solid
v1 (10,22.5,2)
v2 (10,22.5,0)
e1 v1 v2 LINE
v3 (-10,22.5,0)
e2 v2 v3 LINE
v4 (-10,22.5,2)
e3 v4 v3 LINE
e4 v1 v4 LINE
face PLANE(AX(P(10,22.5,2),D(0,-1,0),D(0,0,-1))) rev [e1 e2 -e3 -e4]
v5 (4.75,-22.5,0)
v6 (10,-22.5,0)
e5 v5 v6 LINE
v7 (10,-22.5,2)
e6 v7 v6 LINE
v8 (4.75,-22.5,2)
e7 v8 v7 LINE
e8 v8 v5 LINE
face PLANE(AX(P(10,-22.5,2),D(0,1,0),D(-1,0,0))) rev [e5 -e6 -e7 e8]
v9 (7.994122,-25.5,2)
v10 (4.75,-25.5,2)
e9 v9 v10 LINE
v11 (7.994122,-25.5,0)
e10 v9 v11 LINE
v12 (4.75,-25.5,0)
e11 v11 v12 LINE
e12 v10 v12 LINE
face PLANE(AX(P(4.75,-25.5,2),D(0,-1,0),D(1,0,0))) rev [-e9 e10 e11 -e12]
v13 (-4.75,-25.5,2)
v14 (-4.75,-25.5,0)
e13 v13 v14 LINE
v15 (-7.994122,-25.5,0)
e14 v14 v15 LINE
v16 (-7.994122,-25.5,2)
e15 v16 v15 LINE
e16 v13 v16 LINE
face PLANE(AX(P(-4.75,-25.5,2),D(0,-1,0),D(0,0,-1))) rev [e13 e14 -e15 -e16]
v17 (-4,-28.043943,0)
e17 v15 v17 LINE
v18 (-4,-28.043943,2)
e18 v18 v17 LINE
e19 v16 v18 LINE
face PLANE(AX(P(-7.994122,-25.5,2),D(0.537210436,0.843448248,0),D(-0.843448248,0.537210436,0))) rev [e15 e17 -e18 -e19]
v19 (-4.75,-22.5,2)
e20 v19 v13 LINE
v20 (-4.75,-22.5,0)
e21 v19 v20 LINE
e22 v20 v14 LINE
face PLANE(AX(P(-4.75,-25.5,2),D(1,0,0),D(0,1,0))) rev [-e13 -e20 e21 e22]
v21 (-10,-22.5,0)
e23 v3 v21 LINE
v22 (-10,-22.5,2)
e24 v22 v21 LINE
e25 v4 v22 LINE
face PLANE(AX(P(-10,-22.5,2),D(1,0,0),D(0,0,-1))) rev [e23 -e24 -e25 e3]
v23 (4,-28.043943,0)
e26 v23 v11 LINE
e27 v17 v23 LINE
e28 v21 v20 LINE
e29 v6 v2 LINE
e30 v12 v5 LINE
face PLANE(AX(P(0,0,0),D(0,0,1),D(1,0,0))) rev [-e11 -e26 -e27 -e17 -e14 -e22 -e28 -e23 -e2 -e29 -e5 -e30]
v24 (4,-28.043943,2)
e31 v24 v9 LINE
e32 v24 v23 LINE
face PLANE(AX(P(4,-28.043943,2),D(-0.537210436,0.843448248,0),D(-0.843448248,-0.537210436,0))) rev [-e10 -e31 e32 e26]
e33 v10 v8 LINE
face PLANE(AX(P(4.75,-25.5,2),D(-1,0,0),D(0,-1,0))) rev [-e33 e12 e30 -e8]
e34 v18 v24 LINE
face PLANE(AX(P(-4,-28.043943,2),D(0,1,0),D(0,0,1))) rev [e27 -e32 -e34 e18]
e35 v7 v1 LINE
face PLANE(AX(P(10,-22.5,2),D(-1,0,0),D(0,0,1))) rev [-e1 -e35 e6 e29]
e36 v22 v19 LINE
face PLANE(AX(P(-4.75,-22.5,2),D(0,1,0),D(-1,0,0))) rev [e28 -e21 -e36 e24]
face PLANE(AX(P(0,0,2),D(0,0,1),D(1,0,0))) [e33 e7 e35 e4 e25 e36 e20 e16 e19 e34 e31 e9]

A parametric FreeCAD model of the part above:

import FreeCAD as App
import Part
import Sketcher
Q = App.Units.Quantity

doc = App.newDocument("Part")
body = doc.addObject("PartDesign::Body", "Body")

# Sketch on XY plane
sketch1 = body.newObject("Sketcher::SketchObject", "Sketch")
sketch1.AttachmentSupport = (doc.getObject("XY_Plane"), [""])
sketch1.MapMode = "FlatFace"
sketch1.addGeometry(Part.LineSegment(App.Vector(-4.8, -25.5, 0), App.Vector(-8, -25.5, 0)), False)
sketch1.addGeometry(Part.LineSegment(App.Vector(-8, -25.5, 0), App.Vector(-4, -28, 0)), False)
sketch1.addGeometry(Part.LineSegment(App.Vector(-4, -28, 0), App.Vector(4, -28, 0)), False)
sketch1.addGeometry(Part.LineSegment(App.Vector(4, -28, 0), App.Vector(8, -25.5, 0)), False)
sketch1.addGeometry(Part.LineSegment(App.Vector(8, -25.5, 0), App.Vector(4.8, -25.5, 0)), False)
sketch1.addGeometry(Part.LineSegment(App.Vector(4.8, -25.5, 0), App.Vector(4.8, -22.5, 0)), False)
sketch1.addGeometry(Part.LineSegment(App.Vector(4.8, -22.5, 0), App.Vector(10, -22.5, 0)), False)
sketch1.addGeometry(Part.LineSegment(App.Vector(10, -22.5, 0), App.Vector(10, 22.5, 0)), False)
sketch1.addGeometry(Part.LineSegment(App.Vector(10, 22.5, 0), App.Vector(-10, 22.5, 0)), False)
sketch1.addGeometry(Part.LineSegment(App.Vector(-10, 22.5, 0), App.Vector(-10, -22.5, 0)), False)
sketch1.addGeometry(Part.LineSegment(App.Vector(-10, -22.5, 0), App.Vector(-4.8, -22.5, 0)), False)
sketch1.addGeometry(Part.LineSegment(App.Vector(-4.8, -22.5, 0), App.Vector(-4.8, -25.5, 0)), False)
sketch1.addConstraint(Sketcher.Constraint("Coincident", 0, 2, 1, 1))
sketch1.addConstraint(Sketcher.Constraint("Coincident", 1, 2, 2, 1))
sketch1.addConstraint(Sketcher.Constraint("Coincident", 2, 2, 3, 1))
sketch1.addConstraint(Sketcher.Constraint("Coincident", 3, 2, 4, 1))
sketch1.addConstraint(Sketcher.Constraint("Coincident", 4, 2, 5, 1))
sketch1.addConstraint(Sketcher.Constraint("Coincident", 5, 2, 6, 1))
sketch1.addConstraint(Sketcher.Constraint("Coincident", 6, 2, 7, 1))
sketch1.addConstraint(Sketcher.Constraint("Coincident", 7, 2, 8, 1))
sketch1.addConstraint(Sketcher.Constraint("Coincident", 8, 2, 9, 1))
sketch1.addConstraint(Sketcher.Constraint("Coincident", 9, 2, 10, 1))
sketch1.addConstraint(Sketcher.Constraint("Coincident", 10, 2, 11, 1))
sketch1.addConstraint(Sketcher.Constraint("Coincident", 11, 2, 0, 1))
sketch1.addConstraint(Sketcher.Constraint("Horizontal", 0))
sketch1.addConstraint(Sketcher.Constraint("Horizontal", 2))
sketch1.addConstraint(Sketcher.Constraint("Horizontal", 4))
sketch1.addConstraint(Sketcher.Constraint("Vertical", 5))
sketch1.addConstraint(Sketcher.Constraint("Horizontal", 6))
sketch1.addConstraint(Sketcher.Constraint("Vertical", 7))
sketch1.addConstraint(Sketcher.Constraint("Horizontal", 8))
sketch1.addConstraint(Sketcher.Constraint("Vertical", 9))
sketch1.addConstraint(Sketcher.Constraint("Horizontal", 10))
sketch1.addConstraint(Sketcher.Constraint("Vertical", 11))
sketch1.addConstraint(Sketcher.Constraint("Symmetric", 6, 2, 8, 2, -1, 1))
sketch1.addConstraint(Sketcher.Constraint("Symmetric", 0, 2, 3, 2, -2))
sketch1.addConstraint(Sketcher.Constraint("Symmetric", 5, 2, 10, 2, -2))
sketch1.addConstraint(Sketcher.Constraint("Equal", 1, 3))
sketch1.addConstraint(Sketcher.Constraint("DistanceX", 2, 1, 2, 2, Q("8 mm")))
sketch1.addConstraint(Sketcher.Constraint("DistanceX", 8, 2, 8, 1, Q("20 mm")))
sketch1.addConstraint(Sketcher.Constraint("DistanceY", 5, 1, 5, 2, Q("3 mm")))
sketch1.addConstraint(Sketcher.Constraint("DistanceY", 7, 1, 7, 2, Q("45 mm")))
sketch1.addConstraint(Sketcher.Constraint("DistanceX", 6, 1, 6, 2, Q("5.25 mm")))
sketch1.addConstraint(Sketcher.Constraint("DistanceX", 0, 2, 0, 1, Q("3.244122 mm")))
sketch1.addConstraint(Sketcher.Constraint("Distance", 1, Q("4.735468 mm")))
pad1 = body.newObject("PartDesign::Pad", "Pad")
pad1.Profile = sketch1
pad1.Length = 2

doc.recompute()
